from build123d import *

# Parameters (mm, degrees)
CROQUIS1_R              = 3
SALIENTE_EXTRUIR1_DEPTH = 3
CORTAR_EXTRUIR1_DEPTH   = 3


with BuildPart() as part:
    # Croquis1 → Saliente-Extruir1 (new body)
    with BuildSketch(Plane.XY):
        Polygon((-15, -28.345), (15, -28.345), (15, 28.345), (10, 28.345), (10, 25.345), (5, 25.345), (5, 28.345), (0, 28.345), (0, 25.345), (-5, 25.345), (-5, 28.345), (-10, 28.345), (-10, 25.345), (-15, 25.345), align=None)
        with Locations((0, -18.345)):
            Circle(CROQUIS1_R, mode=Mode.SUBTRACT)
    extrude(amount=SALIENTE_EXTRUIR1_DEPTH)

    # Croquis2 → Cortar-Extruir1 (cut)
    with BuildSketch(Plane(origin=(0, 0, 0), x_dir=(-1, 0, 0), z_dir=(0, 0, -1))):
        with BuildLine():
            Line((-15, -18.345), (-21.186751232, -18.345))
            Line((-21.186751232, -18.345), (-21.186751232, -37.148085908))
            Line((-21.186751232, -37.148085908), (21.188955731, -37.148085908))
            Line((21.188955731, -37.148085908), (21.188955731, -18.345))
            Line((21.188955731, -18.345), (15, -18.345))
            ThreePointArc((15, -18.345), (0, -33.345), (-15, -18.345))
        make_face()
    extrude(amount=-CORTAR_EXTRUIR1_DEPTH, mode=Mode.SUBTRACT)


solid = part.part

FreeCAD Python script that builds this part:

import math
import FreeCAD as App
import Part
import Sketcher
from FreeCAD import Vector
Q = App.Units.Quantity

doc = App.newDocument("Part")
params = doc.addObject("Spreadsheet::Sheet", "Params")
for row, (alias, value) in enumerate([
    ("sketch1_diameter", "6 mm"),
    ("sketch1_width", "30 mm"),
    ("sketch1_height", "3 mm"),
    ("sketch1_height2", "56.69 mm"),
    ("pad1_length", "3 mm"),
    ("sketch2_radius", "15 mm"),
    ("pocket1_length", "3 mm"),
], start=1):
    params.set(f"A{row}", alias)
    params.set(f"B{row}", "=" + value)
    params.setAlias(f"B{row}", alias)

body = doc.addObject("PartDesign::Body", "Body")

sketch1 = doc.addObject("Sketcher::SketchObject", "Sketch")
body.addObject(sketch1)
sketch1.AttachmentSupport = (doc.XY_Plane, [""])
sketch1.MapMode = "FlatFace"
sketch1.addGeometry([
    Part.LineSegment(Vector(-15, -28.3, 0), Vector(15, -28.3, 0)),
    Part.LineSegment(Vector(15, -28.3, 0), Vector(15, 28.3, 0)),
    Part.LineSegment(Vector(15, 28.3, 0), Vector(10, 28.3, 0)),
    Part.LineSegment(Vector(10, 28.3, 0), Vector(10, 25.3, 0)),
    Part.LineSegment(Vector(10, 25.3, 0), Vector(5, 25.3, 0)),
    Part.LineSegment(Vector(5, 25.3, 0), Vector(5, 28.3, 0)),
    Part.LineSegment(Vector(5, 28.3, 0), Vector(0, 28.3, 0)),
    Part.LineSegment(Vector(0, 28.3, 0), Vector(0, 25.3, 0)),
    Part.LineSegment(Vector(0, 25.3, 0), Vector(-5, 25.3, 0)),
    Part.LineSegment(Vector(-5, 25.3, 0), Vector(-5, 28.3, 0)),
    Part.LineSegment(Vector(-5, 28.3, 0), Vector(-10, 28.3, 0)),
    Part.LineSegment(Vector(-10, 28.3, 0), Vector(-10, 25.3, 0)),
    Part.LineSegment(Vector(-10, 25.3, 0), Vector(-15, 25.3, 0)),
    Part.LineSegment(Vector(-15, 25.3, 0), Vector(-15, -28.3, 0)),
    Part.Circle(Vector(0, -18.3, 0), Vector(0, 0, 1), 3),
], False)
sketch1.addConstraint([
    Sketcher.Constraint("Coincident", 0, 2, 1, 1),
    Sketcher.Constraint("Coincident", 1, 2, 2, 1),
    Sketcher.Constraint("Coincident", 2, 2, 3, 1),
    Sketcher.Constraint("Coincident", 3, 2, 4, 1),
    Sketcher.Constraint("Coincident", 4, 2, 5, 1),
    Sketcher.Constraint("Coincident", 5, 2, 6, 1),
    Sketcher.Constraint("Coincident", 6, 2, 7, 1),
    Sketcher.Constraint("Coincident", 7, 2, 8, 1),
    Sketcher.Constraint("Coincident", 8, 2, 9, 1),
    Sketcher.Constraint("Coincident", 9, 2, 10, 1),
    Sketcher.Constraint("Coincident", 10, 2, 11, 1),
    Sketcher.Constraint("Coincident", 11, 2, 12, 1),
    Sketcher.Constraint("Coincident", 12, 2, 13, 1),
    Sketcher.Constraint("Coincident", 13, 2, 0, 1),
    Sketcher.Constraint("Horizontal", 0),
    Sketcher.Constraint("Vertical", 1),
    Sketcher.Constraint("Horizontal", 2),
    Sketcher.Constraint("Vertical", 3),
    Sketcher.Constraint("Horizontal", 4),
    Sketcher.Constraint("Vertical", 5),
    Sketcher.Constraint("Horizontal", 6),
    Sketcher.Constraint("Vertical", 7),
    Sketcher.Constraint("Horizontal", 8),
    Sketcher.Constraint("Vertical", 9),
    Sketcher.Constraint("Horizontal", 10),
    Sketcher.Constraint("Vertical", 11),
    Sketcher.Constraint("Horizontal", 12),
    Sketcher.Constraint("Vertical", 13),
    Sketcher.Constraint("Symmetric", 1, 2, 13, 2, -1, 1),
    Sketcher.Constraint("Symmetric", 4, 2, 8, 2, -2),
    Sketcher.Constraint("Symmetric", 2, 2, 10, 2, -2),
    Sketcher.Constraint("PointOnObject", 14, 3, -2),
    Sketcher.Constraint("PointOnObject", 6, 2, -2),
    Sketcher.Constraint("Horizontal", 2, 2, 5, 2),
    Sketcher.Constraint("Horizontal", 8, 2, 11, 2),
    Sketcher.Constraint("Equal", 2, 4),
    Sketcher.Constraint("Equal", 4, 6),
    Sketcher.Constraint("Diameter", 14, Q("6 mm")),
    Sketcher.Constraint("DistanceX", 0, 1, 0, 2, Q("30 mm")),
    Sketcher.Constraint("DistanceY", 3, 2, 3, 1, Q("3 mm")),
    Sketcher.Constraint("DistanceY", 0, 2, 14, 3, Q("10 mm")),
    Sketcher.Constraint("DistanceY", 1, 1, 1, 2, Q("56.69 mm")),
])
sketch1.setExpression("Constraints[37]", "Params.sketch1_diameter")
sketch1.setExpression("Constraints[38]", "Params.sketch1_width")
sketch1.setExpression("Constraints[39]", "Params.sketch1_height")
sketch1.setExpression("Constraints[41]", "Params.sketch1_height2")
pad1 = doc.addObject("PartDesign::Pad", "Pad")
body.addObject(pad1)
pad1.Profile = sketch1
pad1.setExpression("Length", "Params.pad1_length")

sketch2 = doc.addObject("Sketcher::SketchObject", "Sketch001")
body.addObject(sketch2)
sketch2.AttachmentSupport = (doc.XY_Plane, [""])
sketch2.MapMode = "FlatFace"
sketch2.addGeometry([
    Part.LineSegment(Vector(15, -18, 0), Vector(21, -18, 0)),
    Part.LineSegment(Vector(21, -18, 0), Vector(21, -37, 0)),
    Part.LineSegment(Vector(21, -37, 0), Vector(-21, -37, 0)),
    Part.LineSegment(Vector(-21, -37, 0), Vector(-21, -18, 0)),
    Part.LineSegment(Vector(-21, -18, 0), Vector(-15, -18, 0)),
    Part.ArcOfCircle(Part.Circle(Vector(0, -18, 0), Vector(0, 0, 1), 15), math.radians(180), math.radians(360)),
], False)
sketch2.addConstraint([
    Sketcher.Constraint("Coincident", 0, 2, 1, 1),
    Sketcher.Constraint("Coincident", 1, 2, 2, 1),
    Sketcher.Constraint("Coincident", 2, 2, 3, 1),
    Sketcher.Constraint("Coincident", 3, 2, 4, 1),
    Sketcher.Constraint("Coincident", 4, 2, 5, 1),
    Sketcher.Constraint("Coincident", 5, 2, 0, 1),
    Sketcher.Constraint("Horizontal", 0),
    Sketcher.Constraint("Vertical", 1),
    Sketcher.Constraint("Horizontal", 2),
    Sketcher.Constraint("Vertical", 3),
    Sketcher.Constraint("Horizontal", 4),
    Sketcher.Constraint("Symmetric", 4, 2, 5, 2, -2),
    Sketcher.Constraint("Horizontal", 5, 3, 0, 2),
    Sketcher.Constraint("Radius", 5, Q("15 mm")),
    Sketcher.Constraint("DistanceY", 5, 3, -1, 1, Q("18.345 mm")),
    Sketcher.Constraint("DistanceX", 0, 1, 0, 2, Q("6.186751 mm")),
    Sketcher.Constraint("DistanceX", 2, 2, 2, 1, Q("42.375707 mm")),
    Sketcher.Constraint("DistanceY", 1, 2, 1, 1, Q("18.803086 mm")),
])
sketch2.setExpression("Constraints[13]", "Params.sketch2_radius")
pocket1 = doc.addObject("PartDesign::Pocket", "Pocket")
body.addObject(pocket1)
pocket1.Profile = sketch2
pocket1.setExpression("Length", "Params.pocket1_length")
pocket1.Reversed = True

doc.recompute()
